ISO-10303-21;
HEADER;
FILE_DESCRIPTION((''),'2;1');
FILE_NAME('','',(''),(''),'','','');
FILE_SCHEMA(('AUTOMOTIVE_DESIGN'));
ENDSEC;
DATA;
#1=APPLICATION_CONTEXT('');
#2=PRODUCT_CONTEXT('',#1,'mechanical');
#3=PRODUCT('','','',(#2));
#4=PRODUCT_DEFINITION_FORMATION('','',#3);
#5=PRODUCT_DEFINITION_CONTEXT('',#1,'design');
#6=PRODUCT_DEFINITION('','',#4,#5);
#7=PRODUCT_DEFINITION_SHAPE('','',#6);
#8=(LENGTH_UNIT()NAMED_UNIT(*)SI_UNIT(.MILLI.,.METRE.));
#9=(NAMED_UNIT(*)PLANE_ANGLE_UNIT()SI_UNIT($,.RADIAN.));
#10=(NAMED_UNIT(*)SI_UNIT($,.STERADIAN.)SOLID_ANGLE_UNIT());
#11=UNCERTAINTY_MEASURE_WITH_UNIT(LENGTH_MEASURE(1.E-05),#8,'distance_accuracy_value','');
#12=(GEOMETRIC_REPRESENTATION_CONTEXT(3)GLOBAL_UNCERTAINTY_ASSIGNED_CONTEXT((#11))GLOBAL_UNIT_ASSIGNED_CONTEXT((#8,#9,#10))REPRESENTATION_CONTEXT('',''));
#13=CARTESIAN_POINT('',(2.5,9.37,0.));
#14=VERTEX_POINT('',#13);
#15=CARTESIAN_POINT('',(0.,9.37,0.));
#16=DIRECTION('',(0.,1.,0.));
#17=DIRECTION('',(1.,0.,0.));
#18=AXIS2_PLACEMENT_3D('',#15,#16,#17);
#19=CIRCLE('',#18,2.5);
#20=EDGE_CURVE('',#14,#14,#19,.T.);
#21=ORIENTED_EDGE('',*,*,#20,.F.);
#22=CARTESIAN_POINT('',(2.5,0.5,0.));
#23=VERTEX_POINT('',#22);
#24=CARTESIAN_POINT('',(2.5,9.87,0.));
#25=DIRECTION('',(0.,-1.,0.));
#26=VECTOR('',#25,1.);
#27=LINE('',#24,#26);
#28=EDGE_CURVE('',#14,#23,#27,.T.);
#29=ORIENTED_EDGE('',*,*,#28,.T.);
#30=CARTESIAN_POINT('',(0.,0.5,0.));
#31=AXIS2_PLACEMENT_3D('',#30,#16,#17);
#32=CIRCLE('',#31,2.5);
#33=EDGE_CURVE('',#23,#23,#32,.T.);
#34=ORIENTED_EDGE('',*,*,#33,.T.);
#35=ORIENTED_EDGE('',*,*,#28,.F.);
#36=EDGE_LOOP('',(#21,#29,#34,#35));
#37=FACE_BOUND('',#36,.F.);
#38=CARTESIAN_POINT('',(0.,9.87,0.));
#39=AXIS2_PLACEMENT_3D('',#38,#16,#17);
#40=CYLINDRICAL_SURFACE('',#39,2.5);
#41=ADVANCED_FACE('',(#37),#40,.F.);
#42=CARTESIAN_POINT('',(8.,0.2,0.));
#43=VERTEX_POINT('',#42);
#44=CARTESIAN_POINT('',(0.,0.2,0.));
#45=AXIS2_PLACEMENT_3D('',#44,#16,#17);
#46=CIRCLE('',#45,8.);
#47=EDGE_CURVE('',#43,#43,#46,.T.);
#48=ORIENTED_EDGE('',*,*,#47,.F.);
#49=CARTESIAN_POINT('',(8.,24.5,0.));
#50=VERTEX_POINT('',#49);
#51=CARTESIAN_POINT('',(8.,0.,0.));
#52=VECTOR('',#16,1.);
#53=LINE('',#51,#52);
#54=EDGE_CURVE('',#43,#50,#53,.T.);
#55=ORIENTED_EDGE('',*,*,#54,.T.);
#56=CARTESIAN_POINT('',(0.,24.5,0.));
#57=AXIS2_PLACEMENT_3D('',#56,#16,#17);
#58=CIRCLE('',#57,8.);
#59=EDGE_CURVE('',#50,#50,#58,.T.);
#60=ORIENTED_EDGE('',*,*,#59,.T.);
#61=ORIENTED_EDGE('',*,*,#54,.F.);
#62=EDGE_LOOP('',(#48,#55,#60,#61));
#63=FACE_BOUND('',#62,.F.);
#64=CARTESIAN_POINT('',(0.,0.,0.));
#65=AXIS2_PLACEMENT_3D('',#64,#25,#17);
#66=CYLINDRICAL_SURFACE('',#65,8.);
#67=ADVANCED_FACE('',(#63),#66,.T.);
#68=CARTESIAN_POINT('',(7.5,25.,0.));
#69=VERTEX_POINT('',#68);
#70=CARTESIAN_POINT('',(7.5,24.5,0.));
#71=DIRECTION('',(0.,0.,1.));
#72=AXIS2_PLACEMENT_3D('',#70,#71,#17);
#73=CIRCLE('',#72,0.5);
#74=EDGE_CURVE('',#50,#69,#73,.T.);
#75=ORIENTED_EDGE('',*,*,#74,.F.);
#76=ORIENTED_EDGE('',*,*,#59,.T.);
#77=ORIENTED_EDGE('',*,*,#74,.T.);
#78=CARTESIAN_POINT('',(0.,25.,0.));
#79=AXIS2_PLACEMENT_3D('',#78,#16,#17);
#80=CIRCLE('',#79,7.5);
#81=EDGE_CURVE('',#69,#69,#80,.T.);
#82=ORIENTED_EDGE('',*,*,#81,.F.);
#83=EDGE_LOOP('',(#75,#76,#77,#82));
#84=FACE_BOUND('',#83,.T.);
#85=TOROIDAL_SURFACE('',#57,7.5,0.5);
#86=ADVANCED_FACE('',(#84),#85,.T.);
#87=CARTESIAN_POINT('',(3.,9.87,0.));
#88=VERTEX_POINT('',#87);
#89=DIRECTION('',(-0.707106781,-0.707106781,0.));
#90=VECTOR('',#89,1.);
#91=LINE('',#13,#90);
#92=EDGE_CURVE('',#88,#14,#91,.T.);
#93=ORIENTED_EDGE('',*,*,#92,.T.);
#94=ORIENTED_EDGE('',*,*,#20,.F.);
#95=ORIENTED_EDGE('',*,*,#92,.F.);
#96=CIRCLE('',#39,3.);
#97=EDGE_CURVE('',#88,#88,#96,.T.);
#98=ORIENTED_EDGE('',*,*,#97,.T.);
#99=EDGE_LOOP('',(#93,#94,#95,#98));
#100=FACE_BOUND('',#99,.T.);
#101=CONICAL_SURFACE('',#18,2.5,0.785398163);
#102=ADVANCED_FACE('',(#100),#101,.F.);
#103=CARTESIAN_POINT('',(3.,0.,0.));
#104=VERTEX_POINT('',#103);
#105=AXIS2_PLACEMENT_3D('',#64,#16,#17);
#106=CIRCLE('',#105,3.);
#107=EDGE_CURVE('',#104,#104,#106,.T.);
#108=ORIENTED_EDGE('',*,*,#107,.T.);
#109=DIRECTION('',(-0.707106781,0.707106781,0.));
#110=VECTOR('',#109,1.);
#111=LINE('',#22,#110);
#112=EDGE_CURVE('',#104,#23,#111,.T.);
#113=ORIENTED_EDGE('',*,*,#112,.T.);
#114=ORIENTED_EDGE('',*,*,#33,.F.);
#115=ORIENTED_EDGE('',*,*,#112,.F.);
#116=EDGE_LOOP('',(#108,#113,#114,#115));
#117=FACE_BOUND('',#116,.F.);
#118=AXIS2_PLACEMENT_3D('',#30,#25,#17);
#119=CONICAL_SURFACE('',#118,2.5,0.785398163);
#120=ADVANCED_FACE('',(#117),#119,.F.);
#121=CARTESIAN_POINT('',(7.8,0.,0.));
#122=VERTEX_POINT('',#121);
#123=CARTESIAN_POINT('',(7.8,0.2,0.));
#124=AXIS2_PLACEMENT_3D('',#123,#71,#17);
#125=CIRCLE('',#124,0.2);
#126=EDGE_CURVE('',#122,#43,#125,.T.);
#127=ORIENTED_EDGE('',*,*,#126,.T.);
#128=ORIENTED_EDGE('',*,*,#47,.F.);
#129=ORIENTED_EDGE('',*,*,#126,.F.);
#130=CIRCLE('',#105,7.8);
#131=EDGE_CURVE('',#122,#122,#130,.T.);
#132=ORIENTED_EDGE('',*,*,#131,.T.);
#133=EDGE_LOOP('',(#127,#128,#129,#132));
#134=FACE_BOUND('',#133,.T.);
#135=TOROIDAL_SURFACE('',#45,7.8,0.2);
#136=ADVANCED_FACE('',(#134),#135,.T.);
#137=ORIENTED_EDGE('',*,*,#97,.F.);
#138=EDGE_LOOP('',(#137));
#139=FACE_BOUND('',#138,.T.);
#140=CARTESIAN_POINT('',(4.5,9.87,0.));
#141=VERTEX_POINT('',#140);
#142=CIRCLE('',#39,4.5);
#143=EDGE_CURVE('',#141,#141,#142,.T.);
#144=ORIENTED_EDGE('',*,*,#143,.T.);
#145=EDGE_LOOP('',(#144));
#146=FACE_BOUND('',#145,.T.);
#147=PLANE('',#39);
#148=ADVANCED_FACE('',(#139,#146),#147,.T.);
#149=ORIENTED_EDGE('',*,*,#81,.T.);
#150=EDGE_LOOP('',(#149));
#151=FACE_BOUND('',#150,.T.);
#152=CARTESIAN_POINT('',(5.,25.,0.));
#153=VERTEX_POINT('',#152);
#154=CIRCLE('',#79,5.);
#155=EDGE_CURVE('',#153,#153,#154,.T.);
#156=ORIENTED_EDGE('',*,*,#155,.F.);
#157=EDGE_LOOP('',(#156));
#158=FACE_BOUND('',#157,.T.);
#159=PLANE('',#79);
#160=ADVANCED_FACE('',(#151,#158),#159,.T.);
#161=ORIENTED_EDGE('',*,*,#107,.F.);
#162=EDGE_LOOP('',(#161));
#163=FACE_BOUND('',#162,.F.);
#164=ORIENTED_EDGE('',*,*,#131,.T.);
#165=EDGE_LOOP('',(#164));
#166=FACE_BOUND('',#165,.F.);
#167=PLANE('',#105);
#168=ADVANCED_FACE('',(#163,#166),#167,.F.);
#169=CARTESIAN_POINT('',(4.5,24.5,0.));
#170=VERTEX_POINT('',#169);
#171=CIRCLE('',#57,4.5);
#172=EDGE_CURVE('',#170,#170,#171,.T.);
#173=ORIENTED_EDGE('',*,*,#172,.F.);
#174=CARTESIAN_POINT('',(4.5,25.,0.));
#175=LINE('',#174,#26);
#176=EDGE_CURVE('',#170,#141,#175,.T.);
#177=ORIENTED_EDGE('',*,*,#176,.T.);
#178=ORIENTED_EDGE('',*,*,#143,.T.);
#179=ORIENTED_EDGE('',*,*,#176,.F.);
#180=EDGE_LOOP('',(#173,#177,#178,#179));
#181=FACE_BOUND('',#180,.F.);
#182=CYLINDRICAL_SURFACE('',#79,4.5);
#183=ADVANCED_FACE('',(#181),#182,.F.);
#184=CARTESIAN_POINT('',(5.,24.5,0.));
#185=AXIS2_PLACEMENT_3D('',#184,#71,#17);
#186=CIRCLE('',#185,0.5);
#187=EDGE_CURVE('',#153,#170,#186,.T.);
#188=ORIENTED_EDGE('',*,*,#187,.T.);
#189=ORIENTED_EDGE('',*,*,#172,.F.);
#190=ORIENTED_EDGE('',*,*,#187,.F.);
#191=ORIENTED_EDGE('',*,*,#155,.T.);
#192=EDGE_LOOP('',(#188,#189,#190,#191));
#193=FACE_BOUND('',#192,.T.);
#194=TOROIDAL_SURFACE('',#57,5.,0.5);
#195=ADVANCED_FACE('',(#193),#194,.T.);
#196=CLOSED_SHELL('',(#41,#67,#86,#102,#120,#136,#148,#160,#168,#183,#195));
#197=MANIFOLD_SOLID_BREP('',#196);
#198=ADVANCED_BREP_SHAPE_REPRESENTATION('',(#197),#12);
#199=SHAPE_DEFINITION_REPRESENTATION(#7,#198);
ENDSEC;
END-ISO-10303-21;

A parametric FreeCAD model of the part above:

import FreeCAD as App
import Part
import Sketcher
from FreeCAD import Vector


def edges_at(feature, points):
    """Names of the edges that pass closest to the given points."""
    edges = feature.Shape.Edges
    near = lambda p: min(range(len(edges)), key=lambda i: edges[i].distToShape(Part.Vertex(*p))[0])
    return sorted({f"Edge{near(p) + 1}" for p in points})

doc = App.newDocument("Part")
body = doc.addObject("PartDesign::Body", "Body")

sketch1 = doc.addObject("Sketcher::SketchObject", "Sketch")
body.addObject(sketch1)
sketch1.AttachmentSupport = (doc.XZ_Plane, [""])
sketch1.MapMode = "FlatFace"
sketch1.addGeometry(Part.Circle(Vector(0, 0, 0), Vector(0, 0, 1), 8), False)
sketch1.addConstraint([
    Sketcher.Constraint("Coincident", 0, 3, -1, 1),
    Sketcher.Constraint("Diameter", 0, 16.0),
])
pad1 = doc.addObject("PartDesign::Pad", "Pad")
body.addObject(pad1)
pad1.Profile = sketch1
pad1.Length = 25
pad1.Reversed = True

sketch2 = doc.addObject("Sketcher::SketchObject", "Sketch001")
body.addObject(sketch2)
sketch2.AttachmentSupport = (doc.XZ_Plane, [""])
sketch2.MapMode = "FlatFace"
sketch2.AttachmentOffset = App.Placement(Vector(0, 0, -25), App.Rotation())
sketch2.addGeometry(Part.Circle(Vector(0, 0, 0), Vector(0, 0, 1), 4.5), False)
sketch2.addConstraint([
    Sketcher.Constraint("Coincident", 0, 3, -1, 1),
    Sketcher.Constraint("Diameter", 0, 9.0),
])
pocket1 = doc.addObject("PartDesign::Pocket", "Pocket")
body.addObject(pocket1)
pocket1.Profile = sketch2
pocket1.Length = 15.13
pocket1.Reversed = True

sketch3 = doc.addObject("Sketcher::SketchObject", "Sketch002")
body.addObject(sketch3)
sketch3.AttachmentSupport = (doc.XZ_Plane, [""])
sketch3.MapMode = "FlatFace"
sketch3.AttachmentOffset = App.Placement(Vector(0, 0, -9.87), App.Rotation())
sketch3.addGeometry(Part.Circle(Vector(0, 0, 0), Vector(0, 0, 1), 2.5), False)
sketch3.addConstraint([
    Sketcher.Constraint("Coincident", 0, 3, -1, 1),
    Sketcher.Constraint("Diameter", 0, 5.0),
])
pocket2 = doc.addObject("PartDesign::Pocket", "Pocket001")
body.addObject(pocket2)
pocket2.Profile = sketch3
pocket2.Type = "ThroughAll"
pocket2.Reversed = True
doc.recompute()

fillet = doc.addObject("PartDesign::Fillet", "Fillet")
body.addObject(fillet)
fillet.Base = (pocket2, edges_at(pocket2, [(-8, 25, 0)]))
fillet.Radius = 0.5
doc.recompute()

fillet2 = doc.addObject("PartDesign::Fillet", "Fillet001")
body.addObject(fillet2)
fillet2.Base = (fillet, edges_at(fillet, [(-4.5, 25, 0)]))
fillet2.Radius = 0.5
doc.recompute()

chamfer = doc.addObject("PartDesign::Chamfer", "Chamfer")
body.addObject(chamfer)
chamfer.Base = (fillet2, edges_at(fillet2, [(-2.5, 0, 0), (-2.5, 9.87, 0)]))
chamfer.Size = 0.5
doc.recompute()

fillet3 = doc.addObject("PartDesign::Fillet", "Fillet002")
body.addObject(fillet3)
fillet3.Base = (chamfer, edges_at(chamfer, [(-8, 0, 0)]))
fillet3.Radius = 0.2

doc.recompute()
